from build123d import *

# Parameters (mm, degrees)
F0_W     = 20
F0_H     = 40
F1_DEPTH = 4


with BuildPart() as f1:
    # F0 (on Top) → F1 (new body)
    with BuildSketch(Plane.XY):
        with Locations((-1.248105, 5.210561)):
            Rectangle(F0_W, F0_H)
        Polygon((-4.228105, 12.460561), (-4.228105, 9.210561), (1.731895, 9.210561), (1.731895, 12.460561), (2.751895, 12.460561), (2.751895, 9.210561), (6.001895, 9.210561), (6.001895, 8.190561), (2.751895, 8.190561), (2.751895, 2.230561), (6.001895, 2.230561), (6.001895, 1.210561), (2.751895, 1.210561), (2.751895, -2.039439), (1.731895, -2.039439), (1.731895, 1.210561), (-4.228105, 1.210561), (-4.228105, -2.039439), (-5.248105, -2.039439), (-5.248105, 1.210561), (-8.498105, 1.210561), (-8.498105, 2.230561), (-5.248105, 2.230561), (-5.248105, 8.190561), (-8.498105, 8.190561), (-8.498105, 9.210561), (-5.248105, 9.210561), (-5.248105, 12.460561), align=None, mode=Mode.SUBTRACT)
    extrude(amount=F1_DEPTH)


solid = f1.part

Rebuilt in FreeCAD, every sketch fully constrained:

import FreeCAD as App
import Part
import Sketcher


def add_polygon(sketch, points):
    """Adds a closed chain of lines whose ends are joined by coincident constraints."""
    first, n = sketch.GeometryCount, len(points)
    for a, b in zip(points, points[1:] + points[:1]):
        sketch.addGeometry(Part.LineSegment(App.Vector(*a, 0), App.Vector(*b, 0)), False)
    for i in range(n):
        sketch.addConstraint(Sketcher.Constraint("Coincident", first + i, 2, first + (i + 1) % n, 1))

doc = App.newDocument("Part")
body = doc.addObject("PartDesign::Body", "Body")

# Sketch on XY plane
sketch1 = body.newObject("Sketcher::SketchObject", "Sketch")
sketch1.AttachmentSupport = (doc.getObject("XY_Plane"), [""])
sketch1.MapMode = "FlatFace"
add_polygon(sketch1, [(-11.2, 25.2), (-11.2, -14.8), (8.8, -14.8), (8.8, 25.2)])  # lines 0-3
add_polygon(sketch1, [(-5.2, 12.5), (-4.2, 12.5), (-4.2, 9.2), (1.7, 9.2), (1.7, 12.5), (2.8, 12.5), (2.8, 9.2), (6, 9.2), (6, 8.2), (2.8, 8.2), (2.8, 2.2), (6, 2.2), (6, 1.2), (2.8, 1.2), (2.8, -2), (1.7, -2), (1.7, 1.2), (-4.2, 1.2), (-4.2, -2), (-5.2, -2), (-5.2, 1.2), (-8.5, 1.2), (-8.5, 2.2), (-5.2, 2.2), (-5.2, 8.2), (-8.5, 8.2), (-8.5, 9.2), (-5.2, 9.2)])  # lines 4-31
sketch1.addConstraint(Sketcher.Constraint("Vertical", 0))
sketch1.addConstraint(Sketcher.Constraint("Horizontal", 1))
sketch1.addConstraint(Sketcher.Constraint("Vertical", 2))
sketch1.addConstraint(Sketcher.Constraint("Horizontal", 3))
sketch1.addConstraint(Sketcher.Constraint("Horizontal", 4))
sketch1.addConstraint(Sketcher.Constraint("Vertical", 5))
sketch1.addConstraint(Sketcher.Constraint("Horizontal", 6))
sketch1.addConstraint(Sketcher.Constraint("Vertical", 7))
sketch1.addConstraint(Sketcher.Constraint("Horizontal", 8))
sketch1.addConstraint(Sketcher.Constraint("Vertical", 9))
sketch1.addConstraint(Sketcher.Constraint("Horizontal", 10))
sketch1.addConstraint(Sketcher.Constraint("Vertical", 11))
sketch1.addConstraint(Sketcher.Constraint("Horizontal", 12))
sketch1.addConstraint(Sketcher.Constraint("Vertical", 13))
sketch1.addConstraint(Sketcher.Constraint("Horizontal", 14))
sketch1.addConstraint(Sketcher.Constraint("Vertical", 15))
sketch1.addConstraint(Sketcher.Constraint("Horizontal", 16))
sketch1.addConstraint(Sketcher.Constraint("Vertical", 17))
sketch1.addConstraint(Sketcher.Constraint("Horizontal", 18))
sketch1.addConstraint(Sketcher.Constraint("Vertical", 19))
sketch1.addConstraint(Sketcher.Constraint("Horizontal", 20))
sketch1.addConstraint(Sketcher.Constraint("Vertical", 21))
sketch1.addConstraint(Sketcher.Constraint("Horizontal", 22))
sketch1.addConstraint(Sketcher.Constraint("Vertical", 23))
sketch1.addConstraint(Sketcher.Constraint("Horizontal", 24))
sketch1.addConstraint(Sketcher.Constraint("Vertical", 25))
sketch1.addConstraint(Sketcher.Constraint("Horizontal", 26))
sketch1.addConstraint(Sketcher.Constraint("Vertical", 27))
sketch1.addConstraint(Sketcher.Constraint("Horizontal", 28))
sketch1.addConstraint(Sketcher.Constraint("Vertical", 29))
sketch1.addConstraint(Sketcher.Constraint("Horizontal", 30))
sketch1.addConstraint(Sketcher.Constraint("Vertical", 31))
sketch1.addConstraint(Sketcher.Constraint("Horizontal", 4, 2, 7, 2))
sketch1.addConstraint(Sketcher.Constraint("Horizontal", 6, 2, 9, 2))
sketch1.addConstraint(Sketcher.Constraint("Horizontal", 16, 2, 19, 2))
sketch1.addConstraint(Sketcher.Constraint("Horizontal", 18, 2, 21, 2))
sketch1.addConstraint(Sketcher.Constraint("Horizontal", 20, 2, 23, 2))
sketch1.addConstraint(Sketcher.Constraint("Horizontal", 14, 2, 25, 2))
sketch1.addConstraint(Sketcher.Constraint("Horizontal", 12, 2, 27, 2))
sketch1.addConstraint(Sketcher.Constraint("Horizontal", 10, 2, 29, 2))
sketch1.addConstraint(Sketcher.Constraint("Vertical", 9, 2, 12, 2))
sketch1.addConstraint(Sketcher.Constraint("Vertical", 11, 2, 14, 2))
sketch1.addConstraint(Sketcher.Constraint("Vertical", 13, 2, 16, 2))
sketch1.addConstraint(Sketcher.Constraint("Vertical", 7, 2, 18, 2))
sketch1.addConstraint(Sketcher.Constraint("Vertical", 5, 2, 20, 2))
sketch1.addConstraint(Sketcher.Constraint("Vertical", 23, 2, 26, 2))
sketch1.addConstraint(Sketcher.Constraint("Vertical", 25, 2, 28, 2))
sketch1.addConstraint(Sketcher.Constraint("Vertical", 27, 2, 30, 2))
sketch1.addConstraint(Sketcher.Constraint("Equal", 4, 8))
sketch1.addConstraint(Sketcher.Constraint("Equal", 16, 24))
sketch1.addConstraint(Sketcher.Constraint("Equal", 30, 5))
sketch1.addConstraint(Sketcher.Constraint("Equal", 22, 11))
sketch1.addConstraint(Sketcher.Constraint("Equal", 20, 13))
sketch1.addConstraint(Sketcher.Constraint("Equal", 11, 15))
sketch1.addConstraint(Sketcher.Constraint("Equal", 9, 17))
sketch1.addConstraint(Sketcher.Constraint("DistanceX", 1, 1, 1, 2, 20.0))
sketch1.addConstraint(Sketcher.Constraint("DistanceY", 0, 2, 0, 1, 40.0))
sketch1.addConstraint(Sketcher.Constraint("DistanceY", 5, 2, 3, 2, 16.0))
sketch1.addConstraint(Sketcher.Constraint("DistanceX", 8, 2, 2, 2, 6.0))
sketch1.addConstraint(Sketcher.Constraint("DistanceY", 15, 2, 10, 2, 8.0))
sketch1.addConstraint(Sketcher.Constraint("DistanceX", 4, 1, 4, 2, 1.02))
sketch1.addConstraint(Sketcher.Constraint("DistanceX", 10, 1, 10, 2, 3.25))
sketch1.addConstraint(Sketcher.Constraint("DistanceY", 0, 2, -1, 1, 14.789439))
sketch1.addConstraint(Sketcher.Constraint("DistanceX", 0, 2, -1, 1, 11.248105))
pad1 = body.newObject("PartDesign::Pad", "Pad")
pad1.Profile = sketch1
pad1.Length = 4

doc.recompute()
